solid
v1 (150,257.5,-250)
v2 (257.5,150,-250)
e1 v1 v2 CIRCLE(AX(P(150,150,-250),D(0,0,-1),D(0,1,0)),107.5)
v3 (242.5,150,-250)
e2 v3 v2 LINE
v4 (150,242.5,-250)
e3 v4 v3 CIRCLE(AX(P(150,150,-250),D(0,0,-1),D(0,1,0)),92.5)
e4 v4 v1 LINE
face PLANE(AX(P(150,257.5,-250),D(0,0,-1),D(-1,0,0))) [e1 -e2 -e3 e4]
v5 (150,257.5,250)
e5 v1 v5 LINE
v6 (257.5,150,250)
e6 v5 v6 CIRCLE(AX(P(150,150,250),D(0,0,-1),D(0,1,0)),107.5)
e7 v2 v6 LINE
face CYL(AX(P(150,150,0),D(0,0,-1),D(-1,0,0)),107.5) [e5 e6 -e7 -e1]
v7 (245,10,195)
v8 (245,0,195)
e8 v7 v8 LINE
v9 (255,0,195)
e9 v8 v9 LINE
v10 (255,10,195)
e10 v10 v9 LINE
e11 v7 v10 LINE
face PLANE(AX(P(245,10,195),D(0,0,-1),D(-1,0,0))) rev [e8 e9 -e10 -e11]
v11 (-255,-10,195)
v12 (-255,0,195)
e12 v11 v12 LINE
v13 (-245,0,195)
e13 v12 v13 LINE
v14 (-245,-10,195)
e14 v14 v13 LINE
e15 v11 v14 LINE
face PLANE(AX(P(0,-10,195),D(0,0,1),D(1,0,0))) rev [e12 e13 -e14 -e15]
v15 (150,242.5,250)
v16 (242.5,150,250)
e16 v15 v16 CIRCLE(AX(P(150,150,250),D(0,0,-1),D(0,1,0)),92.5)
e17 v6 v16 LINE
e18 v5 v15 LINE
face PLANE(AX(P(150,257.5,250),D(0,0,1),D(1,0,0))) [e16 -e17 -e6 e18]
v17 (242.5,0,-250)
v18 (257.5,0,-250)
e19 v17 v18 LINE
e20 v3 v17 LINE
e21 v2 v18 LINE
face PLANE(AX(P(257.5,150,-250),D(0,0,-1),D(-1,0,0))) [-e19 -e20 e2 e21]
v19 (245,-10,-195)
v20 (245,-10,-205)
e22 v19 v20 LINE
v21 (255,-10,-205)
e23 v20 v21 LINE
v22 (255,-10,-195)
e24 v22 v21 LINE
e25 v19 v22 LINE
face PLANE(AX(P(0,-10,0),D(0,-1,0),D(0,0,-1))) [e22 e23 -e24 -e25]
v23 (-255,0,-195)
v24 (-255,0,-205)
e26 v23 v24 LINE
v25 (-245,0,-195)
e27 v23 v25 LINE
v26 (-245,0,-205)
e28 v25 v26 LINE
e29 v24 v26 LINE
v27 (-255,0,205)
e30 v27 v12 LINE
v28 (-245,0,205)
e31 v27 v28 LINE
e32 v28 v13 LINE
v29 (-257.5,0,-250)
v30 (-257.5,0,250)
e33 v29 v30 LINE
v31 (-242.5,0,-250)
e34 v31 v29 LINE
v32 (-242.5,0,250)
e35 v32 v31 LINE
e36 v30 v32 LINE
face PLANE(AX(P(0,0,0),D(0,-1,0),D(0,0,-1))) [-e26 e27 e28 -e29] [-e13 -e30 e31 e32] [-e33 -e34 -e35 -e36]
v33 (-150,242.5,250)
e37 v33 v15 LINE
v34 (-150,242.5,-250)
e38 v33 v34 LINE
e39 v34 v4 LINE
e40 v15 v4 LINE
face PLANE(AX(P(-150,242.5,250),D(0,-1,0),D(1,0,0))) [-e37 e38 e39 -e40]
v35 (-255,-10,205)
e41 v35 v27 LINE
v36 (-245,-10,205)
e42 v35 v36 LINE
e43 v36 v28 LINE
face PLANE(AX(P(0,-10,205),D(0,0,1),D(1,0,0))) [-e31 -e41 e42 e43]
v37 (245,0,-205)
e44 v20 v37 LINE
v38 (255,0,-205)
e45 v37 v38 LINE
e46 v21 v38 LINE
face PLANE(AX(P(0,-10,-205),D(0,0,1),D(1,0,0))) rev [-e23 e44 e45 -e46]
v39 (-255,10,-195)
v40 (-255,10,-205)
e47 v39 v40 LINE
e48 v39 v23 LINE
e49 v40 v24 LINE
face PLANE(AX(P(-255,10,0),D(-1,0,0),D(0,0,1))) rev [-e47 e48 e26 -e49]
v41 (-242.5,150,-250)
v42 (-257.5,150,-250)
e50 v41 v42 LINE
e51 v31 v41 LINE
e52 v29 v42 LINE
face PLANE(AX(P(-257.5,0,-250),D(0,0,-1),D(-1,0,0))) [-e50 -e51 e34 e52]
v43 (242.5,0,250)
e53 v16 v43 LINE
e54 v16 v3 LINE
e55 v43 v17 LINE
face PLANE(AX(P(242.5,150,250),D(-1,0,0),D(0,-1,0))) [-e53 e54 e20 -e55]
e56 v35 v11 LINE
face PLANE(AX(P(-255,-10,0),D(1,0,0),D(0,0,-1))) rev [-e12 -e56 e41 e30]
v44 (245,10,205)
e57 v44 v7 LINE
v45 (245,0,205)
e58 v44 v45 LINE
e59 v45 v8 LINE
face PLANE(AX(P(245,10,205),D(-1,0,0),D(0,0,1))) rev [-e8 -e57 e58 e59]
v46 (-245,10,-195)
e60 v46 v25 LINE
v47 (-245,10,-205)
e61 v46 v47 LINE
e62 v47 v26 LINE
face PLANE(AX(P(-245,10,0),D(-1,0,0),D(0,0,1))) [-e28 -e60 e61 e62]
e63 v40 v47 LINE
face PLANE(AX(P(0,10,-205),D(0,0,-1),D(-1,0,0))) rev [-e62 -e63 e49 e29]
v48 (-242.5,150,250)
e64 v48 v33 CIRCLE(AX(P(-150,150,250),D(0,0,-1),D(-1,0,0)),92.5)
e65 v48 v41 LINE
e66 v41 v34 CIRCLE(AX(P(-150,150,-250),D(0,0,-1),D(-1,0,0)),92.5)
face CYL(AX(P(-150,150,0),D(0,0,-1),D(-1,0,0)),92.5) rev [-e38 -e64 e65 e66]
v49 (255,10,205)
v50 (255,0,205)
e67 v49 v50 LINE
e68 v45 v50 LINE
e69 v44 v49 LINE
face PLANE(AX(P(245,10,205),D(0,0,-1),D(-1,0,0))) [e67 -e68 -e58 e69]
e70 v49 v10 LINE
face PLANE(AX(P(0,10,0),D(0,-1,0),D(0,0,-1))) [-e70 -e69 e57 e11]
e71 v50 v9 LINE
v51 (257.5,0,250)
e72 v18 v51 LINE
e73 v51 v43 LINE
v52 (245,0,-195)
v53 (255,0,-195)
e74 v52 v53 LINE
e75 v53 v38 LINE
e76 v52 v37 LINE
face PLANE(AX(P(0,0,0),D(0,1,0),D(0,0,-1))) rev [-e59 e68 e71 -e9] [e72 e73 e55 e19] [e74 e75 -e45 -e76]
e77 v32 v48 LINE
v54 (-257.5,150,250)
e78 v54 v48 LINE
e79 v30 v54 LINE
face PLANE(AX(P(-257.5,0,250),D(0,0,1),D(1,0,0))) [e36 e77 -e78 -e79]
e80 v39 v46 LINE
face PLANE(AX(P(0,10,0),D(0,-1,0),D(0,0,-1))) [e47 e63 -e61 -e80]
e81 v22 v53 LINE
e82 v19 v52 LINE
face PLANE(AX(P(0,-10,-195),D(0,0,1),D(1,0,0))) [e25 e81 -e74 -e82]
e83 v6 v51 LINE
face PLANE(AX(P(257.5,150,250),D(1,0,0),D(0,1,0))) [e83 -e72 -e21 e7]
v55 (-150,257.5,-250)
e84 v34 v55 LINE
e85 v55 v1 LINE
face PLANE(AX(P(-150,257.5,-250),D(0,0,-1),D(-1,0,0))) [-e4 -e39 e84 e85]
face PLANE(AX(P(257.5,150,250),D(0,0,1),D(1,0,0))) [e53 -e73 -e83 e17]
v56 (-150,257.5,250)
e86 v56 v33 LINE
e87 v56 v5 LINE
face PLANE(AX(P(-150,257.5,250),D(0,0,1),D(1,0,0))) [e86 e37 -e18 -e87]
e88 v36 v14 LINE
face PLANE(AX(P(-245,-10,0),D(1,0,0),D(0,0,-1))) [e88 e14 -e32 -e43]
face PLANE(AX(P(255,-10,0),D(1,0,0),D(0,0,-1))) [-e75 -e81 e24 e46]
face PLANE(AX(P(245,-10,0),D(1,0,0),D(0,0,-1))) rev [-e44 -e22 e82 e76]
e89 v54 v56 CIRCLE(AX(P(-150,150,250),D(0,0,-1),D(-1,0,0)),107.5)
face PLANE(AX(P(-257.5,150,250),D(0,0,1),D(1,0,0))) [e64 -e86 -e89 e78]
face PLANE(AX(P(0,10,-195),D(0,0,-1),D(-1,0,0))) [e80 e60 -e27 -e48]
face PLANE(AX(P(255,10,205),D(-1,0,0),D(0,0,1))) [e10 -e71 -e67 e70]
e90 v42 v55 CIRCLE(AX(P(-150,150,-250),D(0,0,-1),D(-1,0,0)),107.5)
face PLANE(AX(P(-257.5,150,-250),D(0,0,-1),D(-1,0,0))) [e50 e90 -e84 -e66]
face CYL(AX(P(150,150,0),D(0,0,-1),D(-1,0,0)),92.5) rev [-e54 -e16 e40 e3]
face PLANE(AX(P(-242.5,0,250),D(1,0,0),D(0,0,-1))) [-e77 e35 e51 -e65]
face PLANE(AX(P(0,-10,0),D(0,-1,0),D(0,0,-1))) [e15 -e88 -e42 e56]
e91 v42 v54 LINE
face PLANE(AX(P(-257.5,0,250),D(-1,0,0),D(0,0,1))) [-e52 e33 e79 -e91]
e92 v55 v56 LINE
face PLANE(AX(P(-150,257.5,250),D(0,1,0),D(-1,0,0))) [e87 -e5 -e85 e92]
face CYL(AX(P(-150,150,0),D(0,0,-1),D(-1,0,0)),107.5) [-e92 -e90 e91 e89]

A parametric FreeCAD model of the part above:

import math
import FreeCAD as App
import Part
import Sketcher
Q = App.Units.Quantity


def add_polygon(sketch, points):
    """Adds a closed chain of lines whose ends are joined by coincident constraints."""
    first, n = sketch.GeometryCount, len(points)
    for a, b in zip(points, points[1:] + points[:1]):
        sketch.addGeometry(Part.LineSegment(App.Vector(*a, 0), App.Vector(*b, 0)), False)
    for i in range(n):
        sketch.addConstraint(Sketcher.Constraint("Coincident", first + i, 2, first + (i + 1) % n, 1))

doc = App.newDocument("Part")
body = doc.addObject("PartDesign::Body", "Body")

sketch1 = doc.addObject("Sketcher::SketchObject", "Sketch")
body.addObject(sketch1)
sketch1.AttachmentSupport = (doc.XZ_Plane, [""])
sketch1.MapMode = "FlatFace"
add_polygon(sketch1, [(-258, -250), (-258, 250), (-242, 250), (-242, -250)])
sketch1.addConstraint([
    Sketcher.Constraint("Vertical", 0),
    Sketcher.Constraint("Horizontal", 1),
    Sketcher.Constraint("Vertical", 2),
    Sketcher.Constraint("Horizontal", 3),
    Sketcher.Constraint("DistanceX", 1, 1, 1, 2, Q("15 mm")),
    Sketcher.Constraint("DistanceY", 0, 1, 0, 2, Q("500 mm")),
    Sketcher.Constraint("DistanceY", -1, 1, 0, 2, Q("250 mm")),
    Sketcher.Constraint("DistanceX", 0, 2, -1, 1, Q("257.5 mm")),
])

sketch2 = doc.addObject("Sketcher::SketchObject", "Sketch001")
body.addObject(sketch2)
sketch2.AttachmentSupport = (doc.XY_Plane, [""])
sketch2.MapMode = "FlatFace"
sketch2.addGeometry([
    Part.LineSegment(App.Vector(-250, 0, 0), App.Vector(-250, 150, 0)),
    Part.ArcOfCircle(Part.Circle(App.Vector(-150, 150, 0), App.Vector(0, 0, 1), 100), math.radians(90), math.radians(180)),
    Part.LineSegment(App.Vector(-150, 250, 0), App.Vector(150, 250, 0)),
    Part.ArcOfCircle(Part.Circle(App.Vector(150, 150, 0), App.Vector(0, 0, 1), 100), math.radians(0), math.radians(90)),
    Part.LineSegment(App.Vector(250, 150, 0), App.Vector(250, 0, 0)),
], False)
sketch2.addConstraint([
    Sketcher.Constraint("Tangent", 0, 2, 1, 2),
    Sketcher.Constraint("Tangent", 1, 1, 2, 1),
    Sketcher.Constraint("Tangent", 2, 2, 3, 2),
    Sketcher.Constraint("Tangent", 3, 1, 4, 1),
    Sketcher.Constraint("Vertical", 0),
    Sketcher.Constraint("Horizontal", 2),
    Sketcher.Constraint("Vertical", 4),
    Sketcher.Constraint("Equal", 1, 3),
    Sketcher.Constraint("Symmetric", 0, 1, 4, 2, -1, 1),
    Sketcher.Constraint("PointOnObject", 0, 1, -1),
    Sketcher.Constraint("Radius", 1, Q("100 mm")),
    Sketcher.Constraint("DistanceX", 2, 1, 2, 2, Q("300 mm")),
    Sketcher.Constraint("DistanceY", 0, 1, 0, 2, Q("150 mm")),
])
doc.recompute()

additivepipe = doc.addObject("PartDesign::AdditivePipe", "AdditivePipe")
body.addObject(additivepipe)
additivepipe.Profile = sketch1
additivepipe.Spine = (sketch2, ["Edge1", "Edge2", "Edge3", "Edge4", "Edge5"])

sketch3 = doc.addObject("Sketcher::SketchObject", "Sketch002")
body.addObject(sketch3)
sketch3.AttachmentSupport = (doc.XZ_Plane, [""])
sketch3.MapMode = "FlatFace"
add_polygon(sketch3, [(-255, 205), (-255, 195), (-245, 195), (-245, 205)])
add_polygon(sketch3, [(245, -195), (245, -205), (255, -205), (255, -195)])
sketch3.addConstraint([
    Sketcher.Constraint("Vertical", 0),
    Sketcher.Constraint("Horizontal", 1),
    Sketcher.Constraint("Vertical", 2),
    Sketcher.Constraint("Horizontal", 3),
    Sketcher.Constraint("Vertical", 4),
    Sketcher.Constraint("Horizontal", 5),
    Sketcher.Constraint("Vertical", 6),
    Sketcher.Constraint("Horizontal", 7),
    Sketcher.Constraint("Symmetric", 2, 2, 4, 2, -1, 1),
    Sketcher.Constraint("Symmetric", 0, 2, 6, 2, -1, 1),
    Sketcher.Constraint("Equal", 7, 0),
    Sketcher.Constraint("DistanceX", 1, 1, 1, 2, Q("10 mm")),
    Sketcher.Constraint("DistanceX", 0, 2, -1, 1, Q("255 mm")),
    Sketcher.Constraint("DistanceY", -1, 1, 0, 2, Q("195 mm")),
])
pad1 = doc.addObject("PartDesign::Pad", "Pad")
body.addObject(pad1)
pad1.Profile = sketch3
pad1.Length = 10

sketch4 = doc.addObject("Sketcher::SketchObject", "Sketch003")
body.addObject(sketch4)
sketch4.AttachmentSupport = (doc.XZ_Plane, [""])
sketch4.MapMode = "FlatFace"
add_polygon(sketch4, [(-255, -195), (-255, -205), (-245, -205), (-245, -195)])
add_polygon(sketch4, [(245, 205), (245, 195), (255, 195), (255, 205)])
sketch4.addConstraint([
    Sketcher.Constraint("Vertical", 0),
    Sketcher.Constraint("Horizontal", 1),
    Sketcher.Constraint("Vertical", 2),
    Sketcher.Constraint("Horizontal", 3),
    Sketcher.Constraint("Vertical", 4),
    Sketcher.Constraint("Horizontal", 5),
    Sketcher.Constraint("Vertical", 6),
    Sketcher.Constraint("Horizontal", 7),
    Sketcher.Constraint("Symmetric", 2, 2, 4, 2, -1, 1),
    Sketcher.Constraint("Symmetric", 0, 2, 6, 2, -1, 1),
    Sketcher.Constraint("Equal", 7, 0),
    Sketcher.Constraint("DistanceX", 1, 1, 1, 2, Q("10 mm")),
    Sketcher.Constraint("DistanceX", 0, 2, -1, 1, Q("255 mm")),
    Sketcher.Constraint("DistanceY", 0, 2, -1, 1, Q("205 mm")),
])
pocket1 = doc.addObject("PartDesign::Pocket", "Pocket")
body.addObject(pocket1)
pocket1.Profile = sketch4
pocket1.Length = 10

doc.recompute()
